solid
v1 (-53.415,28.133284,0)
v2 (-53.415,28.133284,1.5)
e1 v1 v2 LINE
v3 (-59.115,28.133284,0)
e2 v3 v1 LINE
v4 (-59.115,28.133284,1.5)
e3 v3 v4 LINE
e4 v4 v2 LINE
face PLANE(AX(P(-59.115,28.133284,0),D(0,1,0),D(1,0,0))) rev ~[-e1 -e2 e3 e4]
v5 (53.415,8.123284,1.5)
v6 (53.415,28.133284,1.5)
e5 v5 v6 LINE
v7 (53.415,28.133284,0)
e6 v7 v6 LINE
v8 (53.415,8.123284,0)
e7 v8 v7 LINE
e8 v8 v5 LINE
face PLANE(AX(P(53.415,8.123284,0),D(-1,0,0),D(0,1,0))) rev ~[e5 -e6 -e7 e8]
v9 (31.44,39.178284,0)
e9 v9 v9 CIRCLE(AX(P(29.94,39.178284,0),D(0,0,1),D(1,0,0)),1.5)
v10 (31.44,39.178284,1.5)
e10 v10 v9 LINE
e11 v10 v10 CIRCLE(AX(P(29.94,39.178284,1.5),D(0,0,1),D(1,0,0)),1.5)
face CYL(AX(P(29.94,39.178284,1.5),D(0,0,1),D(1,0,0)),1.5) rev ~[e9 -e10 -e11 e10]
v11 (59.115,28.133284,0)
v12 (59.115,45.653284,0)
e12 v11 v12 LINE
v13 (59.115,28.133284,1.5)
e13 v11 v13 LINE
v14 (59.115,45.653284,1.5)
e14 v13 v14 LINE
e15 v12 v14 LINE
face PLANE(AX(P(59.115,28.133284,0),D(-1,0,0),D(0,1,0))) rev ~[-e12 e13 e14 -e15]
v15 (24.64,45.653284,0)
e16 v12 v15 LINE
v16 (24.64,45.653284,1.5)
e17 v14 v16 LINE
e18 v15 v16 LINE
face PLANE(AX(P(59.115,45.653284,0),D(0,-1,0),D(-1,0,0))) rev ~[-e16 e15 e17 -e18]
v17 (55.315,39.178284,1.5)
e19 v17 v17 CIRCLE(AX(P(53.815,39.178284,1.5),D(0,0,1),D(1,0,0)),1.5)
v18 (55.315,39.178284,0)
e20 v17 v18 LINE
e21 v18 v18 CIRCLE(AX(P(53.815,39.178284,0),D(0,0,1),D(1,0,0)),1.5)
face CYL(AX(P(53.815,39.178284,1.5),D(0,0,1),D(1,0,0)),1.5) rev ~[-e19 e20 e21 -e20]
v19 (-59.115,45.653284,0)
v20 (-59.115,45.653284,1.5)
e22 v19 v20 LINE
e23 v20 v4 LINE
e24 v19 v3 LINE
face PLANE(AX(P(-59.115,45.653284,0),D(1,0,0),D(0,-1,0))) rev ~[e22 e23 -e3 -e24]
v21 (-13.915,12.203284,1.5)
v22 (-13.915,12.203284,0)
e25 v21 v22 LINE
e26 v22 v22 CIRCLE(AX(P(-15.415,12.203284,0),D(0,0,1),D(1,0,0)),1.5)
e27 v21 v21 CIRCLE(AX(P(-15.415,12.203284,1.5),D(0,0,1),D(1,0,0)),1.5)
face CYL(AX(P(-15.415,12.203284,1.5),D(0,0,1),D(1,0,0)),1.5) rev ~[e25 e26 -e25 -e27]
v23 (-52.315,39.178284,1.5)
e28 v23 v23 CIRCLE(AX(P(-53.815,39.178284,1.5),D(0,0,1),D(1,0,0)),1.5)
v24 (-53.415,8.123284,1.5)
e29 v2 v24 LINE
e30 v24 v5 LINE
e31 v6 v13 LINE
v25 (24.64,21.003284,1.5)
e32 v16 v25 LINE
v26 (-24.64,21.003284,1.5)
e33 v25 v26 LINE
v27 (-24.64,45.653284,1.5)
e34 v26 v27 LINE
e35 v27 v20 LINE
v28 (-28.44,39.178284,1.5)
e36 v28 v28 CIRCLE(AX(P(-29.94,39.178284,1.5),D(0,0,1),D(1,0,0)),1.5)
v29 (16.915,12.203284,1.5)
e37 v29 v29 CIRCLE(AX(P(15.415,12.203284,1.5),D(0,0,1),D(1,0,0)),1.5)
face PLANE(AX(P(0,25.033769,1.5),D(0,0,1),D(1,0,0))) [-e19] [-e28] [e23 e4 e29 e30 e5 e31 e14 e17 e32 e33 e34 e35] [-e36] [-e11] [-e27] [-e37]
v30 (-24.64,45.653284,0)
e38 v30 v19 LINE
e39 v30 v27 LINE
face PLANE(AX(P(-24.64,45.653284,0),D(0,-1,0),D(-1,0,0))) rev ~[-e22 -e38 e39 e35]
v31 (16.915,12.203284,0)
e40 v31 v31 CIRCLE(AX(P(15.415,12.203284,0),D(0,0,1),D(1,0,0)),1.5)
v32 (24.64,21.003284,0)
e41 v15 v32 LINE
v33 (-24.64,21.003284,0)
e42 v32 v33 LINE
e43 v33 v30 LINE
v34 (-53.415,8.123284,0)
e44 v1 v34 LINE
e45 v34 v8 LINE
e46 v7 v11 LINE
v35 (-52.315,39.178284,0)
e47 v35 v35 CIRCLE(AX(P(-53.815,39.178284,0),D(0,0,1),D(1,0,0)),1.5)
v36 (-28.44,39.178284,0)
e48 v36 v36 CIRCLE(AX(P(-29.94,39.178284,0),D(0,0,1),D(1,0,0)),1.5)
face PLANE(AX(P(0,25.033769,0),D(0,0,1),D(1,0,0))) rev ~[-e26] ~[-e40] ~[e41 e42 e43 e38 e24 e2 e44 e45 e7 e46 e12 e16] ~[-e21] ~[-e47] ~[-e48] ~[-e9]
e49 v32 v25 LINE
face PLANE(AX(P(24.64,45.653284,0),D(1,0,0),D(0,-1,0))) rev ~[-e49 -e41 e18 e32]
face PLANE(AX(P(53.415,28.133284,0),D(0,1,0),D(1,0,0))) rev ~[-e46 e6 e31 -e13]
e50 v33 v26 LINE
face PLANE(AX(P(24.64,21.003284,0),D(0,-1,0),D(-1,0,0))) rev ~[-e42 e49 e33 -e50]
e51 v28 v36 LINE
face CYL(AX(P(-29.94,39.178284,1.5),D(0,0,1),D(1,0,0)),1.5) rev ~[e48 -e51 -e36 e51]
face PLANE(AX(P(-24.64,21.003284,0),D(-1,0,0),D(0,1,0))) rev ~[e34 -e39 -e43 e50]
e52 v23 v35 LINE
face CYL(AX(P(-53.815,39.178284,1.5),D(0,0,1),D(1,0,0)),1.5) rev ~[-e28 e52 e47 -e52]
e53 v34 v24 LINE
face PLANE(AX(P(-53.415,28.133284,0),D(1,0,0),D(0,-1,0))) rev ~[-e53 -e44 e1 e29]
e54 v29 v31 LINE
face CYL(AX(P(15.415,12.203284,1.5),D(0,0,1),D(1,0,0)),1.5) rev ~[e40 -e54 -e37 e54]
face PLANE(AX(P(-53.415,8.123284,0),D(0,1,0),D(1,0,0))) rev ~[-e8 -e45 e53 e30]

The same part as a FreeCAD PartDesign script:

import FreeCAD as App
import Part
import Sketcher
from FreeCAD import Vector
Q = App.Units.Quantity

doc = App.newDocument("Part")
params = doc.addObject("Spreadsheet::Sheet", "Params")
for row, (alias, value) in enumerate([
    ("sketch1_width", "5.7 mm"),
    ("sketch1_width2", "106.83 mm"),
    ("sketch1_width3", "49.28 mm"),
    ("sketch1_height", "20.01 mm"),
    ("sketch1_height2", "17.52 mm"),
    ("pad1_length", "1.5 mm"),
    ("sketch2_diameter", "3 mm"),
    ("pocket1_length", "12.3 mm"),
], start=1):
    params.set(f"A{row}", alias)
    params.set(f"B{row}", "=" + value)
    params.setAlias(f"B{row}", alias)

body = doc.addObject("PartDesign::Body", "Body")

sketch1 = body.newObject("Sketcher::SketchObject", "Sketch")
sketch1.AttachmentSupport = (doc.getObject("XY_Plane"), [""])
sketch1.MapMode = "FlatFace"
sketch1.addGeometry(Part.LineSegment(Vector(-53, 8, 0), Vector(53, 8, 0)), False)
sketch1.addGeometry(Part.LineSegment(Vector(53, 8, 0), Vector(53, 28, 0)), False)
sketch1.addGeometry(Part.LineSegment(Vector(53, 28, 0), Vector(59, 28, 0)), False)
sketch1.addGeometry(Part.LineSegment(Vector(59, 28, 0), Vector(59, 46, 0)), False)
sketch1.addGeometry(Part.LineSegment(Vector(59, 46, 0), Vector(25, 46, 0)), False)
sketch1.addGeometry(Part.LineSegment(Vector(25, 46, 0), Vector(25, 21, 0)), False)
sketch1.addGeometry(Part.LineSegment(Vector(25, 21, 0), Vector(-25, 21, 0)), False)
sketch1.addGeometry(Part.LineSegment(Vector(-25, 21, 0), Vector(-25, 46, 0)), False)
sketch1.addGeometry(Part.LineSegment(Vector(-25, 46, 0), Vector(-59, 46, 0)), False)
sketch1.addGeometry(Part.LineSegment(Vector(-59, 46, 0), Vector(-59, 28, 0)), False)
sketch1.addGeometry(Part.LineSegment(Vector(-59, 28, 0), Vector(-53, 28, 0)), False)
sketch1.addGeometry(Part.LineSegment(Vector(-53, 28, 0), Vector(-53, 8, 0)), False)
sketch1.addConstraint(Sketcher.Constraint("Coincident", 0, 2, 1, 1))
sketch1.addConstraint(Sketcher.Constraint("Coincident", 1, 2, 2, 1))
sketch1.addConstraint(Sketcher.Constraint("Coincident", 2, 2, 3, 1))
sketch1.addConstraint(Sketcher.Constraint("Coincident", 3, 2, 4, 1))
sketch1.addConstraint(Sketcher.Constraint("Coincident", 4, 2, 5, 1))
sketch1.addConstraint(Sketcher.Constraint("Coincident", 5, 2, 6, 1))
sketch1.addConstraint(Sketcher.Constraint("Coincident", 6, 2, 7, 1))
sketch1.addConstraint(Sketcher.Constraint("Coincident", 7, 2, 8, 1))
sketch1.addConstraint(Sketcher.Constraint("Coincident", 8, 2, 9, 1))
sketch1.addConstraint(Sketcher.Constraint("Coincident", 9, 2, 10, 1))
sketch1.addConstraint(Sketcher.Constraint("Coincident", 10, 2, 11, 1))
sketch1.addConstraint(Sketcher.Constraint("Coincident", 11, 2, 0, 1))
sketch1.addConstraint(Sketcher.Constraint("Horizontal", 0))
sketch1.addConstraint(Sketcher.Constraint("Vertical", 1))
sketch1.addConstraint(Sketcher.Constraint("Horizontal", 2))
sketch1.addConstraint(Sketcher.Constraint("Vertical", 3))
sketch1.addConstraint(Sketcher.Constraint("Horizontal", 4))
sketch1.addConstraint(Sketcher.Constraint("Vertical", 5))
sketch1.addConstraint(Sketcher.Constraint("Horizontal", 6))
sketch1.addConstraint(Sketcher.Constraint("Vertical", 7))
sketch1.addConstraint(Sketcher.Constraint("Horizontal", 8))
sketch1.addConstraint(Sketcher.Constraint("Vertical", 9))
sketch1.addConstraint(Sketcher.Constraint("Horizontal", 10))
sketch1.addConstraint(Sketcher.Constraint("Vertical", 11))
sketch1.addConstraint(Sketcher.Constraint("Symmetric", 4, 2, 7, 2, -2))
sketch1.addConstraint(Sketcher.Constraint("Symmetric", 2, 2, 9, 2, -2))
sketch1.addConstraint(Sketcher.Constraint("Equal", 2, 10))
sketch1.addConstraint(Sketcher.Constraint("DistanceX", 2, 1, 2, 2, Q("5.7 mm")))
sketch1.addConstraint(Sketcher.Constraint("DistanceX", 0, 1, 0, 2, Q("106.83 mm")))
sketch1.addConstraint(Sketcher.Constraint("DistanceX", 6, 2, 6, 1, Q("49.28 mm")))
sketch1.addConstraint(Sketcher.Constraint("DistanceY", 1, 1, 1, 2, Q("20.01 mm")))
sketch1.addConstraint(Sketcher.Constraint("DistanceY", 3, 1, 3, 2, Q("17.52 mm")))
sketch1.addConstraint(Sketcher.Constraint("DistanceY", 5, 2, 5, 1, Q("24.65 mm")))
sketch1.addConstraint(Sketcher.Constraint("DistanceY", -1, 1, 0, 2, Q("8.123284 mm")))
sketch1.setExpression("Constraints[27]", "Params.sketch1_width")
sketch1.setExpression("Constraints[28]", "Params.sketch1_width2")
sketch1.setExpression("Constraints[29]", "Params.sketch1_width3")
sketch1.setExpression("Constraints[30]", "Params.sketch1_height")
sketch1.setExpression("Constraints[31]", "Params.sketch1_height2")
pad1 = body.newObject("PartDesign::Pad", "Pad")
pad1.Profile = sketch1
pad1.setExpression("Length", "Params.pad1_length")

sketch2 = body.newObject("Sketcher::SketchObject", "Sketch001")
sketch2.AttachmentSupport = (doc.getObject("XY_Plane"), [""])
sketch2.MapMode = "FlatFace"
sketch2.AttachmentOffset = App.Placement(Vector(0, 0, 1.5), App.Rotation())
sketch2.addGeometry(Part.Circle(Vector(-53.8, 39.2, 0), Vector(0, 0, 1), 1.5), False)
sketch2.addGeometry(Part.Circle(Vector(-29.9, 39.2, 0), Vector(0, 0, 1), 1.5), False)
sketch2.addGeometry(Part.Circle(Vector(-15.4, 12.2, 0), Vector(0, 0, 1), 1.5), False)
sketch2.addGeometry(Part.Circle(Vector(15.4, 12.2, 0), Vector(0, 0, 1), 1.5), False)
sketch2.addGeometry(Part.Circle(Vector(29.9, 39.2, 0), Vector(0, 0, 1), 1.5), False)
sketch2.addGeometry(Part.Circle(Vector(53.8, 39.2, 0), Vector(0, 0, 1), 1.5), False)
sketch2.addConstraint(Sketcher.Constraint("Equal", 0, 1))
sketch2.addConstraint(Sketcher.Constraint("Equal", 1, 2))
sketch2.addConstraint(Sketcher.Constraint("Equal", 2, 3))
sketch2.addConstraint(Sketcher.Constraint("Equal", 3, 4))
sketch2.addConstraint(Sketcher.Constraint("Equal", 4, 5))
sketch2.addConstraint(Sketcher.Constraint("Symmetric", 2, 3, 3, 3, -2))
sketch2.addConstraint(Sketcher.Constraint("Symmetric", 1, 3, 4, 3, -2))
sketch2.addConstraint(Sketcher.Constraint("Symmetric", 0, 3, 5, 3, -2))
sketch2.addConstraint(Sketcher.Constraint("Horizontal", 0, 3, 1, 3))
sketch2.addConstraint(Sketcher.Constraint("Diameter", 0, Q("3 mm")))
sketch2.addConstraint(Sketcher.Constraint("DistanceX", 0, 3, 2, 3, Q("38.4 mm")))
sketch2.addConstraint(Sketcher.Constraint("DistanceX", 1, 3, -1, 1, Q("29.94 mm")))
sketch2.addConstraint(Sketcher.Constraint("DistanceX", 2, 3, 3, 3, Q("30.83 mm")))
sketch2.addConstraint(Sketcher.Constraint("DistanceY", 2, 3, 1, 3, Q("26.975 mm")))
sketch2.addConstraint(Sketcher.Constraint("DistanceY", -1, 1, 0, 3, Q("39.178284 mm")))
sketch2.setExpression("Constraints[9]", "Params.sketch2_diameter")
pocket1 = body.newObject("PartDesign::Pocket", "Pocket")
pocket1.Profile = sketch2
pocket1.setExpression("Length", "Params.pocket1_length")

doc.recompute()
